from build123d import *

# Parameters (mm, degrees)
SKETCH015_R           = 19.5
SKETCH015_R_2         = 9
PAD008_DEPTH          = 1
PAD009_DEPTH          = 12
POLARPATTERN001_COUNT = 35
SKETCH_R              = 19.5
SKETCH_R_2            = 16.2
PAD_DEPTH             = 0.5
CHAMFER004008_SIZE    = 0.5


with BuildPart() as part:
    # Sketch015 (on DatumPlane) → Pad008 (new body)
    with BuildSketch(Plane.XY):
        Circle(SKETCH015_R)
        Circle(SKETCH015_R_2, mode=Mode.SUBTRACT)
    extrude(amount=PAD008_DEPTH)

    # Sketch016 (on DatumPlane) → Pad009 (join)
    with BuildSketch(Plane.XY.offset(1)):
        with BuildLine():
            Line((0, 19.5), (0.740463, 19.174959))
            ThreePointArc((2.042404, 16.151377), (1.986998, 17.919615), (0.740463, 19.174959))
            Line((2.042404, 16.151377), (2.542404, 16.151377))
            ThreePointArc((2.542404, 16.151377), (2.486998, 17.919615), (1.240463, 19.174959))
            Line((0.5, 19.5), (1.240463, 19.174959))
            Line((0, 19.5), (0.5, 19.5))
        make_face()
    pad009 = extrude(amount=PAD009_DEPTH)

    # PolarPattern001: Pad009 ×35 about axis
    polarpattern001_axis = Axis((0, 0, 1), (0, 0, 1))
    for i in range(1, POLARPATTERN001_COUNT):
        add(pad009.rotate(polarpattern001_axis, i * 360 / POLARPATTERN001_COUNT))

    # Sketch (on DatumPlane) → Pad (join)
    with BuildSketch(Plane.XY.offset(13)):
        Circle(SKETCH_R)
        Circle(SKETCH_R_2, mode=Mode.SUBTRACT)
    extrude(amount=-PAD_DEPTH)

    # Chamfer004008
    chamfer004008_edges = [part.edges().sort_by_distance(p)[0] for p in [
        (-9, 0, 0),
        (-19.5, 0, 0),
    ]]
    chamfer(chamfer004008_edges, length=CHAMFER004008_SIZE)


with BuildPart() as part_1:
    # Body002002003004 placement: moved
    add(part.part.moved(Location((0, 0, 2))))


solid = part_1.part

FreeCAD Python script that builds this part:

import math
import FreeCAD as App
import Part
import Sketcher
Q = App.Units.Quantity


def edges_at(feature, points):
    """Names of the edges that pass closest to the given points."""
    edges = feature.Shape.Edges
    near = lambda p: min(range(len(edges)), key=lambda i: edges[i].distToShape(Part.Vertex(*p))[0])
    return sorted({f"Edge{near(p) + 1}" for p in points})

doc = App.newDocument("Part")
body = doc.addObject("PartDesign::Body", "Body")

sketch1 = doc.addObject("Sketcher::SketchObject", "Sketch")
body.addObject(sketch1)
sketch1.AttachmentSupport = (doc.XY_Plane, [""])
sketch1.MapMode = "FlatFace"
sketch1.addGeometry(Part.Circle(App.Vector(0, 0, 0), App.Vector(0, 0, 1), 20), False)
sketch1.addGeometry(Part.Circle(App.Vector(0, 0, 0), App.Vector(0, 0, 1), 9), False)
sketch1.addConstraint(Sketcher.Constraint("Coincident", 0, 3, -1, 1))
sketch1.addConstraint(Sketcher.Constraint("Coincident", 1, 3, -1, 1))
sketch1.addConstraint(Sketcher.Constraint("Diameter", 0, Q("39 mm")))
sketch1.addConstraint(Sketcher.Constraint("Diameter", 1, Q("18 mm")))
pad1 = doc.addObject("PartDesign::Pad", "Pad")
body.addObject(pad1)
pad1.Profile = sketch1
pad1.Length = 1

sketch2 = doc.addObject("Sketcher::SketchObject", "Sketch001")
body.addObject(sketch2)
sketch2.AttachmentSupport = (doc.XY_Plane, [""])
sketch2.MapMode = "FlatFace"
sketch2.AttachmentOffset = App.Placement(App.Vector(0, 0, 1), App.Rotation())
sketch2.addGeometry(Part.LineSegment(App.Vector(0, 19.5, 0), App.Vector(0.7, 19.2, 0)), False)
sketch2.addGeometry(Part.ArcOfCircle(Part.Circle(App.Vector(-0.2, 17, 0), App.Vector(0, 0, 1), 2.4), math.radians(-20), math.radians(66)), False)
sketch2.addGeometry(Part.LineSegment(App.Vector(2, 16.2, 0), App.Vector(2.5, 16.2, 0)), False)
sketch2.addGeometry(Part.ArcOfCircle(Part.Circle(App.Vector(0.3, 17, 0), App.Vector(0, 0, 1), 2.4), math.radians(-20), math.radians(66)), False)
sketch2.addGeometry(Part.LineSegment(App.Vector(1.2, 19.2, 0), App.Vector(0.5, 19.5, 0)), False)
sketch2.addGeometry(Part.LineSegment(App.Vector(0.5, 19.5, 0), App.Vector(0, 19.5, 0)), False)
sketch2.addConstraint(Sketcher.Constraint("Tangent", 0, 2, 1, 2))
sketch2.addConstraint(Sketcher.Constraint("Coincident", 1, 1, 2, 1))
sketch2.addConstraint(Sketcher.Constraint("Coincident", 2, 2, 3, 1))
sketch2.addConstraint(Sketcher.Constraint("Tangent", 3, 2, 4, 1))
sketch2.addConstraint(Sketcher.Constraint("Coincident", 4, 2, 5, 1))
sketch2.addConstraint(Sketcher.Constraint("Coincident", 5, 2, 0, 1))
sketch2.addConstraint(Sketcher.Constraint("Horizontal", 2))
sketch2.addConstraint(Sketcher.Constraint("Horizontal", 5))
sketch2.addConstraint(Sketcher.Constraint("Equal", 1, 3))
sketch2.addConstraint(Sketcher.Constraint("PointOnObject", 5, 2, -2))
sketch2.addConstraint(Sketcher.Constraint("Parallel", 0, 4))
sketch2.addConstraint(Sketcher.Constraint("Horizontal", 1, 3, 3, 3))
sketch2.addConstraint(Sketcher.Constraint("DistanceX", 2, 1, 2, 2, Q("0.5 mm")))
sketch2.addConstraint(Sketcher.Constraint("DistanceY", -1, 1, 4, 2, Q("19.5 mm")))
sketch2.addConstraint(Sketcher.Constraint("Radius", 1, Q("2.413317 mm")))
sketch2.addConstraint(Sketcher.Constraint("DistanceY", -1, 1, 0, 2, Q("19.174959 mm")))
sketch2.addConstraint(Sketcher.Constraint("DistanceX", 0, 2, 1, 1, Q("1.301941 mm")))
sketch2.addConstraint(Sketcher.Constraint("DistanceY", 1, 1, 0, 2, Q("3.023582 mm")))
pad2 = doc.addObject("PartDesign::Pad", "Pad001")
body.addObject(pad2)
pad2.Profile = sketch2
pad2.Length = 12
doc.recompute()

polarpattern = doc.addObject("PartDesign::PolarPattern", "PolarPattern")
body.addObject(polarpattern)
polarpattern.Originals = [pad2]
polarpattern.Axis = (doc.Z_Axis, [""])
polarpattern.Angle = 360
polarpattern.Occurrences = 35
body.Tip = polarpattern

sketch3 = doc.addObject("Sketcher::SketchObject", "Sketch002")
body.addObject(sketch3)
sketch3.AttachmentSupport = (doc.XY_Plane, [""])
sketch3.MapMode = "FlatFace"
sketch3.AttachmentOffset = App.Placement(App.Vector(0, 0, 13), App.Rotation())
sketch3.addGeometry(Part.Circle(App.Vector(0, 0, 0), App.Vector(0, 0, 1), 20), False)
sketch3.addGeometry(Part.Circle(App.Vector(0, 0, 0), App.Vector(0, 0, 1), 16), False)
sketch3.addConstraint(Sketcher.Constraint("Coincident", 0, 3, -1, 1))
sketch3.addConstraint(Sketcher.Constraint("Coincident", 1, 3, -1, 1))
sketch3.addConstraint(Sketcher.Constraint("Diameter", 0, Q("39 mm")))
sketch3.addConstraint(Sketcher.Constraint("Diameter", 1, Q("32.4 mm")))
pad3 = doc.addObject("PartDesign::Pad", "Pad002")
body.addObject(pad3)
pad3.Profile = sketch3
pad3.Length = 0.5
pad3.Reversed = True
doc.recompute()

chamfer = doc.addObject("PartDesign::Chamfer", "Chamfer")
body.addObject(chamfer)
chamfer.Base = (pad3, edges_at(pad3, [(-9, 0, 0), (-19.5, 0, 0)]))
chamfer.Size = 0.5
body2 = doc.addObject("PartDesign::Body", "Body001")
doc.recompute()

body.Placement = App.Placement(App.Vector(0, 0, 2), App.Rotation(App.Vector(0, 0, 1), 0))
boolean = doc.addObject("PartDesign::Boolean", "Boolean")
body2.addObject(boolean)
boolean.Type = "Fuse"
boolean.addObjects([body])

doc.recompute()
